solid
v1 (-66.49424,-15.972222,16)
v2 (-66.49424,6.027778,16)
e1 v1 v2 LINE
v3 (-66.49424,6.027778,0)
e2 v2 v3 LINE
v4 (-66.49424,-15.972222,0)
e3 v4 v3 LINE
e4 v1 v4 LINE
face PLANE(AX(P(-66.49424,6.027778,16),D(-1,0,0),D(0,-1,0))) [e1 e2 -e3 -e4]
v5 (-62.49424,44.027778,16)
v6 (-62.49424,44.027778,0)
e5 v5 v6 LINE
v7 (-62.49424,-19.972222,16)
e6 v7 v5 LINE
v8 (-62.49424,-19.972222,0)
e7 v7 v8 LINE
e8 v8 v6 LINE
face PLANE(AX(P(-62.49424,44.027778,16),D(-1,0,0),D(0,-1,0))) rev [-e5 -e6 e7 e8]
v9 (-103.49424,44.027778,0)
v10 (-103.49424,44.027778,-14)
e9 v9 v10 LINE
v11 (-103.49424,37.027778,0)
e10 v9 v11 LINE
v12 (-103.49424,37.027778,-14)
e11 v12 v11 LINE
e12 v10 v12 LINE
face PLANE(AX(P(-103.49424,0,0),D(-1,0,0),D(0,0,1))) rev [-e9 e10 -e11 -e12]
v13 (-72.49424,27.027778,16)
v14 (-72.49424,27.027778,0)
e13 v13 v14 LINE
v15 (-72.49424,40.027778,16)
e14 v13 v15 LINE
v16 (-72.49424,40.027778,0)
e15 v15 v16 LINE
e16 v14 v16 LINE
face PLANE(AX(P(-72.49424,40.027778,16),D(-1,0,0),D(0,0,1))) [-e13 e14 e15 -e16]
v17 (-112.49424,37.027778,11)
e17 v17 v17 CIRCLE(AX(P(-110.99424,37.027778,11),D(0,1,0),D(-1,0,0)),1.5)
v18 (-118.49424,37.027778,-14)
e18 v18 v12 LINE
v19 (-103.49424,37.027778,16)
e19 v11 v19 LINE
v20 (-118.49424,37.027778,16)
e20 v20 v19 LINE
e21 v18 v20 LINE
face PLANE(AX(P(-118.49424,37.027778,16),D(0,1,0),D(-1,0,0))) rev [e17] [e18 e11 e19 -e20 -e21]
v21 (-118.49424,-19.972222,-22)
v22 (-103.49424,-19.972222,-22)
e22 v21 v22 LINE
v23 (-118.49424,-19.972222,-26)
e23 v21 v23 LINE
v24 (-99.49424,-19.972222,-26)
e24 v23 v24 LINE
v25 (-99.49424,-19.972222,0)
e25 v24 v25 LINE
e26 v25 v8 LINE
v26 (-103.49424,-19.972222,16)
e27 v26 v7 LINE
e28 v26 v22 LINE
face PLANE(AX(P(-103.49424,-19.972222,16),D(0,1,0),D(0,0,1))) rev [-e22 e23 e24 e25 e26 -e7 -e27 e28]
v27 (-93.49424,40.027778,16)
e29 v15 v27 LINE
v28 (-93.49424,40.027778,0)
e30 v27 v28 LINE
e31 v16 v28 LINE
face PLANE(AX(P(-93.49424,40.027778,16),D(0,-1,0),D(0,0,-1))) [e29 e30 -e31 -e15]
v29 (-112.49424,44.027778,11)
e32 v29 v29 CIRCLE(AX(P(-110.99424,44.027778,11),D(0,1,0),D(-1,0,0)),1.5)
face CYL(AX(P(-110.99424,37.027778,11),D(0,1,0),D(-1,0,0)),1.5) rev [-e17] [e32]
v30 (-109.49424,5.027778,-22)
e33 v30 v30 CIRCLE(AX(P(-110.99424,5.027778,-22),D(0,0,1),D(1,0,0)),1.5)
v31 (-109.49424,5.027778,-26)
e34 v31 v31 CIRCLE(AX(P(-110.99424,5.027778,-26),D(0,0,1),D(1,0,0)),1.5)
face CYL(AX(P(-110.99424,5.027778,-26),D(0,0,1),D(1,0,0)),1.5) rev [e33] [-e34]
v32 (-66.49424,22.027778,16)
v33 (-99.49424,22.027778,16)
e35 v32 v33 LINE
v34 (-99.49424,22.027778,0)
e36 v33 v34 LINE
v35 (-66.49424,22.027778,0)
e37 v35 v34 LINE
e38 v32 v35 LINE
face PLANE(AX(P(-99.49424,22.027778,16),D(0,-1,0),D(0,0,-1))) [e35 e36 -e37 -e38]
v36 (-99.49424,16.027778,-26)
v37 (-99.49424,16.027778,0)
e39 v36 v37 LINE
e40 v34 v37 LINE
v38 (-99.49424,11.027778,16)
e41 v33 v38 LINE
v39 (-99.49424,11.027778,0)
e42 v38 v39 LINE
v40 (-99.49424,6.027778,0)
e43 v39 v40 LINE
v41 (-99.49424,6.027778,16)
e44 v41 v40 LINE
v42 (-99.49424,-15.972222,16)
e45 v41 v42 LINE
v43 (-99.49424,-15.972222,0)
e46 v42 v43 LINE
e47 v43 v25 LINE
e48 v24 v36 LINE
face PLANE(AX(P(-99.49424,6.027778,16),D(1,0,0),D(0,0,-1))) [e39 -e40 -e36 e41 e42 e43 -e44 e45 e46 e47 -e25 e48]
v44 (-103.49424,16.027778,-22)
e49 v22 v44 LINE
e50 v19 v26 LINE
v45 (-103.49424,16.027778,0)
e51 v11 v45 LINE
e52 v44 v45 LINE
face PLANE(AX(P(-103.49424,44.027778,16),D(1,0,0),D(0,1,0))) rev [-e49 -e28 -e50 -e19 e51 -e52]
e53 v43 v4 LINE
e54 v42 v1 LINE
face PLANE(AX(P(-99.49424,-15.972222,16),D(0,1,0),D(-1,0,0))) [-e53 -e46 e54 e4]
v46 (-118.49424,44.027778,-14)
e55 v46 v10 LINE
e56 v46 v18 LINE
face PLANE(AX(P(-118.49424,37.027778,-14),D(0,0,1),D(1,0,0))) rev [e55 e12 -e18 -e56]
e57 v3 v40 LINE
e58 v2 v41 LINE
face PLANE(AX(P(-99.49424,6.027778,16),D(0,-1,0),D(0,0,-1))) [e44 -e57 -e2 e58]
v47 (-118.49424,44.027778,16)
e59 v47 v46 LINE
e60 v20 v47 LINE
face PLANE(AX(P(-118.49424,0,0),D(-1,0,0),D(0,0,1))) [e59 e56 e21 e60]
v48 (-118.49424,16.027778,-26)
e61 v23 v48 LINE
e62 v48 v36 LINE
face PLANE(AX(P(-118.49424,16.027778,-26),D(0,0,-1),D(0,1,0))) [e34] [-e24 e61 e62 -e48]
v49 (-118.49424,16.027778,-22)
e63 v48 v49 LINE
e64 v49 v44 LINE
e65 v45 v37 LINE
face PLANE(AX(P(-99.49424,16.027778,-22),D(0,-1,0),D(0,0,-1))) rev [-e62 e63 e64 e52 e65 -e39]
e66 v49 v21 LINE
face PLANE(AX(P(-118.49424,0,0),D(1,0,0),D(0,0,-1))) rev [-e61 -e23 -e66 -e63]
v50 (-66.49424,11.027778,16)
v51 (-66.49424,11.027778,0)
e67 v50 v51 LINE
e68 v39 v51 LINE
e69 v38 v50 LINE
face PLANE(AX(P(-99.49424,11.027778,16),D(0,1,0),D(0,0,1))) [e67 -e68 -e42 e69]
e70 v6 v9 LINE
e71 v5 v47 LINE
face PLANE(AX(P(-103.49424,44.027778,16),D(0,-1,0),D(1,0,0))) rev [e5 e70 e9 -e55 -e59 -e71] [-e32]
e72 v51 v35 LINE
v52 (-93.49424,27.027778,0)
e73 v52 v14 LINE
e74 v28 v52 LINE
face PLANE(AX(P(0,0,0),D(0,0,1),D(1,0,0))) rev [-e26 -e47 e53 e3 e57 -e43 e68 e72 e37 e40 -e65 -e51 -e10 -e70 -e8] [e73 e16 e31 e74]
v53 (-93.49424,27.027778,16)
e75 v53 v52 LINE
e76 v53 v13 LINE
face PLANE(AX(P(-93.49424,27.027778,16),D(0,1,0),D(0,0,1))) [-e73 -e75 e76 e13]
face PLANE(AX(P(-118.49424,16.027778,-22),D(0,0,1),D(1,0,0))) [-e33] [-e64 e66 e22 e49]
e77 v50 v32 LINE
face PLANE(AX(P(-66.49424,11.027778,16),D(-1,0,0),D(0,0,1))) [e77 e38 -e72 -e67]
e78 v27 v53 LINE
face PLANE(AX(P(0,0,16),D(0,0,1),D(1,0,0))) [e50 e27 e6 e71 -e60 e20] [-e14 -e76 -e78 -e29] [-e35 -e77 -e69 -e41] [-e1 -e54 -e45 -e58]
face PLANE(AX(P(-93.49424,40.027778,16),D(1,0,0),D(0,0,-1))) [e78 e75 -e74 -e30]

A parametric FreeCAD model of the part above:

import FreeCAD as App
import Part
import Sketcher
Q = App.Units.Quantity


def add_polygon(sketch, points):
    """Adds a closed chain of lines whose ends are joined by coincident constraints."""
    first, n = sketch.GeometryCount, len(points)
    for a, b in zip(points, points[1:] + points[:1]):
        sketch.addGeometry(Part.LineSegment(App.Vector(*a, 0), App.Vector(*b, 0)), False)
    for i in range(n):
        sketch.addConstraint(Sketcher.Constraint("Coincident", first + i, 2, first + (i + 1) % n, 1))

doc = App.newDocument("Part")
body = doc.addObject("PartDesign::Body", "Body")

sketch1 = body.newObject("Sketcher::SketchObject", "Sketch")
sketch1.AttachmentSupport = (doc.getObject("XY_Plane"), [""])
sketch1.MapMode = "FlatFace"
add_polygon(sketch1, [(-103, 44), (-103, -20), (-62, -20), (-62, 44)])
add_polygon(sketch1, [(-66, -16), (-99, -16), (-99, 6), (-66, 6)])
add_polygon(sketch1, [(-66, 11), (-99, 11), (-99, 22), (-66, 22)])
add_polygon(sketch1, [(-72, 27), (-93, 27), (-93, 40), (-72, 40)])
sketch1.addConstraint([
    Sketcher.Constraint("Vertical", 0),
    Sketcher.Constraint("Horizontal", 1),
    Sketcher.Constraint("Vertical", 2),
    Sketcher.Constraint("Horizontal", 3),
    Sketcher.Constraint("Horizontal", 4),
    Sketcher.Constraint("Vertical", 5),
    Sketcher.Constraint("Horizontal", 6),
    Sketcher.Constraint("Vertical", 7),
    Sketcher.Constraint("Horizontal", 8),
    Sketcher.Constraint("Vertical", 9),
    Sketcher.Constraint("Horizontal", 10),
    Sketcher.Constraint("Vertical", 11),
    Sketcher.Constraint("Horizontal", 12),
    Sketcher.Constraint("Vertical", 13),
    Sketcher.Constraint("Horizontal", 14),
    Sketcher.Constraint("Vertical", 15),
    Sketcher.Constraint("Vertical", 5, 2, 8, 2),
    Sketcher.Constraint("Vertical", 7, 2, 10, 2),
    Sketcher.Constraint("DistanceX", 1, 1, 1, 2, Q("41 mm")),
    Sketcher.Constraint("DistanceX", 4, 2, 4, 1, Q("33 mm")),
    Sketcher.Constraint("DistanceX", 12, 2, 12, 1, Q("21 mm")),
    Sketcher.Constraint("DistanceY", 0, 2, 0, 1, Q("64 mm")),
    Sketcher.Constraint("DistanceY", 5, 1, 5, 2, Q("22 mm")),
    Sketcher.Constraint("DistanceY", 9, 1, 9, 2, Q("11 mm")),
    Sketcher.Constraint("DistanceY", 13, 1, 13, 2, Q("13 mm")),
    Sketcher.Constraint("DistanceX", 0, 2, 4, 2, Q("4 mm")),
    Sketcher.Constraint("DistanceY", 0, 2, 4, 2, Q("4 mm")),
    Sketcher.Constraint("DistanceY", 5, 2, 8, 2, Q("5 mm")),
    Sketcher.Constraint("DistanceX", 9, 2, 12, 2, Q("6 mm")),
    Sketcher.Constraint("DistanceY", 9, 2, 12, 2, Q("5 mm")),
    Sketcher.Constraint("DistanceX", 0, 2, -1, 1, Q("103.49424 mm")),
    Sketcher.Constraint("DistanceY", 0, 2, -1, 1, Q("19.972222 mm")),
])
pad1 = body.newObject("PartDesign::Pad", "Pad")
pad1.Profile = sketch1
pad1.Length = 16

sketch2 = body.newObject("Sketcher::SketchObject", "Sketch001")
sketch2.AttachmentSupport = (doc.getObject("YZ_Plane"), [""])
sketch2.MapMode = "FlatFace"
sketch2.AttachmentOffset = App.Placement(App.Vector(0, 0, -103.49424), App.Rotation())
add_polygon(sketch2, [(44, -14), (37, -14), (37, 16), (44, 16)])
sketch2.addConstraint([
    Sketcher.Constraint("Horizontal", 0),
    Sketcher.Constraint("Vertical", 1),
    Sketcher.Constraint("Horizontal", 2),
    Sketcher.Constraint("Vertical", 3),
    Sketcher.Constraint("DistanceX", 0, 2, 0, 1, Q("7 mm")),
    Sketcher.Constraint("DistanceY", 1, 1, 1, 2, Q("30 mm")),
    Sketcher.Constraint("DistanceY", 0, 2, -1, 1, Q("14 mm")),
    Sketcher.Constraint("DistanceX", -1, 1, 0, 2, Q("37.027778 mm")),
])
pad2 = body.newObject("PartDesign::Pad", "Pad001")
pad2.Profile = sketch2
pad2.Length = 15
pad2.Reversed = True

sketch3 = body.newObject("Sketcher::SketchObject", "Sketch002")
sketch3.AttachmentSupport = (doc.getObject("XY_Plane"), [""])
sketch3.MapMode = "FlatFace"
add_polygon(sketch3, [(-99.5, -20), (-103.5, -20), (-103.5, 16), (-99.5, 16)])
sketch3.addConstraint([
    Sketcher.Constraint("Horizontal", 0),
    Sketcher.Constraint("Vertical", 1),
    Sketcher.Constraint("Horizontal", 2),
    Sketcher.Constraint("Vertical", 3),
    Sketcher.Constraint("DistanceX", 0, 2, 0, 1, Q("4 mm")),
    Sketcher.Constraint("DistanceY", 1, 1, 1, 2, Q("36 mm")),
    Sketcher.Constraint("DistanceX", 0, 2, -1, 1, Q("103.49424 mm")),
    Sketcher.Constraint("DistanceY", 0, 2, -1, 1, Q("19.972222 mm")),
])
pad3 = body.newObject("PartDesign::Pad", "Pad002")
pad3.Profile = sketch3
pad3.Length = 22
pad3.Reversed = True

sketch4 = body.newObject("Sketcher::SketchObject", "Sketch003")
sketch4.AttachmentSupport = (doc.getObject("YZ_Plane"), [""])
sketch4.MapMode = "FlatFace"
sketch4.AttachmentOffset = App.Placement(App.Vector(0, 0, -99.49424), App.Rotation())
add_polygon(sketch4, [(16, -22), (-20, -22), (-20, -26), (16, -26)])
sketch4.addConstraint([
    Sketcher.Constraint("Horizontal", 0),
    Sketcher.Constraint("Vertical", 1),
    Sketcher.Constraint("Horizontal", 2),
    Sketcher.Constraint("Vertical", 3),
    Sketcher.Constraint("DistanceX", 0, 2, 0, 1, Q("36 mm")),
    Sketcher.Constraint("DistanceY", 1, 2, 1, 1, Q("4 mm")),
    Sketcher.Constraint("DistanceY", 0, 2, -1, 1, Q("22 mm")),
    Sketcher.Constraint("DistanceX", 0, 2, -1, 1, Q("19.972222 mm")),
])
pad4 = body.newObject("PartDesign::Pad", "Pad003")
pad4.Profile = sketch4
pad4.Length = 19
pad4.Reversed = True

sketch5 = body.newObject("Sketcher::SketchObject", "Sketch004")
sketch5.AttachmentSupport = (doc.getObject("XZ_Plane"), [""])
sketch5.MapMode = "FlatFace"
sketch5.AttachmentOffset = App.Placement(App.Vector(0, 0, -37.027778), App.Rotation())
sketch5.addGeometry(Part.Circle(App.Vector(-111, 11, 0), App.Vector(0, 0, 1), 1.5), False)
sketch5.addConstraint([
    Sketcher.Constraint("Diameter", 0, Q("3 mm")),
    Sketcher.Constraint("DistanceY", -1, 1, 0, 3, Q("11 mm")),
    Sketcher.Constraint("DistanceX", 0, 3, -1, 1, Q("110.99424 mm")),
])
pocket1 = body.newObject("PartDesign::Pocket", "Pocket")
pocket1.Profile = sketch5
pocket1.Length = 7

sketch6 = body.newObject("Sketcher::SketchObject", "Sketch005")
sketch6.AttachmentSupport = (doc.getObject("XY_Plane"), [""])
sketch6.MapMode = "FlatFace"
sketch6.AttachmentOffset = App.Placement(App.Vector(0, 0, -22), App.Rotation())
sketch6.addGeometry(Part.Circle(App.Vector(-111, 5, 0), App.Vector(0, 0, 1), 1.5), False)
sketch6.addConstraint([
    Sketcher.Constraint("Diameter", 0, Q("3 mm")),
    Sketcher.Constraint("DistanceX", 0, 3, -1, 1, Q("110.99424 mm")),
    Sketcher.Constraint("DistanceY", -1, 1, 0, 3, Q("5.027778 mm")),
])
pocket2 = body.newObject("PartDesign::Pocket", "Pocket001")
pocket2.Profile = sketch6
pocket2.Length = 4

doc.recompute()
